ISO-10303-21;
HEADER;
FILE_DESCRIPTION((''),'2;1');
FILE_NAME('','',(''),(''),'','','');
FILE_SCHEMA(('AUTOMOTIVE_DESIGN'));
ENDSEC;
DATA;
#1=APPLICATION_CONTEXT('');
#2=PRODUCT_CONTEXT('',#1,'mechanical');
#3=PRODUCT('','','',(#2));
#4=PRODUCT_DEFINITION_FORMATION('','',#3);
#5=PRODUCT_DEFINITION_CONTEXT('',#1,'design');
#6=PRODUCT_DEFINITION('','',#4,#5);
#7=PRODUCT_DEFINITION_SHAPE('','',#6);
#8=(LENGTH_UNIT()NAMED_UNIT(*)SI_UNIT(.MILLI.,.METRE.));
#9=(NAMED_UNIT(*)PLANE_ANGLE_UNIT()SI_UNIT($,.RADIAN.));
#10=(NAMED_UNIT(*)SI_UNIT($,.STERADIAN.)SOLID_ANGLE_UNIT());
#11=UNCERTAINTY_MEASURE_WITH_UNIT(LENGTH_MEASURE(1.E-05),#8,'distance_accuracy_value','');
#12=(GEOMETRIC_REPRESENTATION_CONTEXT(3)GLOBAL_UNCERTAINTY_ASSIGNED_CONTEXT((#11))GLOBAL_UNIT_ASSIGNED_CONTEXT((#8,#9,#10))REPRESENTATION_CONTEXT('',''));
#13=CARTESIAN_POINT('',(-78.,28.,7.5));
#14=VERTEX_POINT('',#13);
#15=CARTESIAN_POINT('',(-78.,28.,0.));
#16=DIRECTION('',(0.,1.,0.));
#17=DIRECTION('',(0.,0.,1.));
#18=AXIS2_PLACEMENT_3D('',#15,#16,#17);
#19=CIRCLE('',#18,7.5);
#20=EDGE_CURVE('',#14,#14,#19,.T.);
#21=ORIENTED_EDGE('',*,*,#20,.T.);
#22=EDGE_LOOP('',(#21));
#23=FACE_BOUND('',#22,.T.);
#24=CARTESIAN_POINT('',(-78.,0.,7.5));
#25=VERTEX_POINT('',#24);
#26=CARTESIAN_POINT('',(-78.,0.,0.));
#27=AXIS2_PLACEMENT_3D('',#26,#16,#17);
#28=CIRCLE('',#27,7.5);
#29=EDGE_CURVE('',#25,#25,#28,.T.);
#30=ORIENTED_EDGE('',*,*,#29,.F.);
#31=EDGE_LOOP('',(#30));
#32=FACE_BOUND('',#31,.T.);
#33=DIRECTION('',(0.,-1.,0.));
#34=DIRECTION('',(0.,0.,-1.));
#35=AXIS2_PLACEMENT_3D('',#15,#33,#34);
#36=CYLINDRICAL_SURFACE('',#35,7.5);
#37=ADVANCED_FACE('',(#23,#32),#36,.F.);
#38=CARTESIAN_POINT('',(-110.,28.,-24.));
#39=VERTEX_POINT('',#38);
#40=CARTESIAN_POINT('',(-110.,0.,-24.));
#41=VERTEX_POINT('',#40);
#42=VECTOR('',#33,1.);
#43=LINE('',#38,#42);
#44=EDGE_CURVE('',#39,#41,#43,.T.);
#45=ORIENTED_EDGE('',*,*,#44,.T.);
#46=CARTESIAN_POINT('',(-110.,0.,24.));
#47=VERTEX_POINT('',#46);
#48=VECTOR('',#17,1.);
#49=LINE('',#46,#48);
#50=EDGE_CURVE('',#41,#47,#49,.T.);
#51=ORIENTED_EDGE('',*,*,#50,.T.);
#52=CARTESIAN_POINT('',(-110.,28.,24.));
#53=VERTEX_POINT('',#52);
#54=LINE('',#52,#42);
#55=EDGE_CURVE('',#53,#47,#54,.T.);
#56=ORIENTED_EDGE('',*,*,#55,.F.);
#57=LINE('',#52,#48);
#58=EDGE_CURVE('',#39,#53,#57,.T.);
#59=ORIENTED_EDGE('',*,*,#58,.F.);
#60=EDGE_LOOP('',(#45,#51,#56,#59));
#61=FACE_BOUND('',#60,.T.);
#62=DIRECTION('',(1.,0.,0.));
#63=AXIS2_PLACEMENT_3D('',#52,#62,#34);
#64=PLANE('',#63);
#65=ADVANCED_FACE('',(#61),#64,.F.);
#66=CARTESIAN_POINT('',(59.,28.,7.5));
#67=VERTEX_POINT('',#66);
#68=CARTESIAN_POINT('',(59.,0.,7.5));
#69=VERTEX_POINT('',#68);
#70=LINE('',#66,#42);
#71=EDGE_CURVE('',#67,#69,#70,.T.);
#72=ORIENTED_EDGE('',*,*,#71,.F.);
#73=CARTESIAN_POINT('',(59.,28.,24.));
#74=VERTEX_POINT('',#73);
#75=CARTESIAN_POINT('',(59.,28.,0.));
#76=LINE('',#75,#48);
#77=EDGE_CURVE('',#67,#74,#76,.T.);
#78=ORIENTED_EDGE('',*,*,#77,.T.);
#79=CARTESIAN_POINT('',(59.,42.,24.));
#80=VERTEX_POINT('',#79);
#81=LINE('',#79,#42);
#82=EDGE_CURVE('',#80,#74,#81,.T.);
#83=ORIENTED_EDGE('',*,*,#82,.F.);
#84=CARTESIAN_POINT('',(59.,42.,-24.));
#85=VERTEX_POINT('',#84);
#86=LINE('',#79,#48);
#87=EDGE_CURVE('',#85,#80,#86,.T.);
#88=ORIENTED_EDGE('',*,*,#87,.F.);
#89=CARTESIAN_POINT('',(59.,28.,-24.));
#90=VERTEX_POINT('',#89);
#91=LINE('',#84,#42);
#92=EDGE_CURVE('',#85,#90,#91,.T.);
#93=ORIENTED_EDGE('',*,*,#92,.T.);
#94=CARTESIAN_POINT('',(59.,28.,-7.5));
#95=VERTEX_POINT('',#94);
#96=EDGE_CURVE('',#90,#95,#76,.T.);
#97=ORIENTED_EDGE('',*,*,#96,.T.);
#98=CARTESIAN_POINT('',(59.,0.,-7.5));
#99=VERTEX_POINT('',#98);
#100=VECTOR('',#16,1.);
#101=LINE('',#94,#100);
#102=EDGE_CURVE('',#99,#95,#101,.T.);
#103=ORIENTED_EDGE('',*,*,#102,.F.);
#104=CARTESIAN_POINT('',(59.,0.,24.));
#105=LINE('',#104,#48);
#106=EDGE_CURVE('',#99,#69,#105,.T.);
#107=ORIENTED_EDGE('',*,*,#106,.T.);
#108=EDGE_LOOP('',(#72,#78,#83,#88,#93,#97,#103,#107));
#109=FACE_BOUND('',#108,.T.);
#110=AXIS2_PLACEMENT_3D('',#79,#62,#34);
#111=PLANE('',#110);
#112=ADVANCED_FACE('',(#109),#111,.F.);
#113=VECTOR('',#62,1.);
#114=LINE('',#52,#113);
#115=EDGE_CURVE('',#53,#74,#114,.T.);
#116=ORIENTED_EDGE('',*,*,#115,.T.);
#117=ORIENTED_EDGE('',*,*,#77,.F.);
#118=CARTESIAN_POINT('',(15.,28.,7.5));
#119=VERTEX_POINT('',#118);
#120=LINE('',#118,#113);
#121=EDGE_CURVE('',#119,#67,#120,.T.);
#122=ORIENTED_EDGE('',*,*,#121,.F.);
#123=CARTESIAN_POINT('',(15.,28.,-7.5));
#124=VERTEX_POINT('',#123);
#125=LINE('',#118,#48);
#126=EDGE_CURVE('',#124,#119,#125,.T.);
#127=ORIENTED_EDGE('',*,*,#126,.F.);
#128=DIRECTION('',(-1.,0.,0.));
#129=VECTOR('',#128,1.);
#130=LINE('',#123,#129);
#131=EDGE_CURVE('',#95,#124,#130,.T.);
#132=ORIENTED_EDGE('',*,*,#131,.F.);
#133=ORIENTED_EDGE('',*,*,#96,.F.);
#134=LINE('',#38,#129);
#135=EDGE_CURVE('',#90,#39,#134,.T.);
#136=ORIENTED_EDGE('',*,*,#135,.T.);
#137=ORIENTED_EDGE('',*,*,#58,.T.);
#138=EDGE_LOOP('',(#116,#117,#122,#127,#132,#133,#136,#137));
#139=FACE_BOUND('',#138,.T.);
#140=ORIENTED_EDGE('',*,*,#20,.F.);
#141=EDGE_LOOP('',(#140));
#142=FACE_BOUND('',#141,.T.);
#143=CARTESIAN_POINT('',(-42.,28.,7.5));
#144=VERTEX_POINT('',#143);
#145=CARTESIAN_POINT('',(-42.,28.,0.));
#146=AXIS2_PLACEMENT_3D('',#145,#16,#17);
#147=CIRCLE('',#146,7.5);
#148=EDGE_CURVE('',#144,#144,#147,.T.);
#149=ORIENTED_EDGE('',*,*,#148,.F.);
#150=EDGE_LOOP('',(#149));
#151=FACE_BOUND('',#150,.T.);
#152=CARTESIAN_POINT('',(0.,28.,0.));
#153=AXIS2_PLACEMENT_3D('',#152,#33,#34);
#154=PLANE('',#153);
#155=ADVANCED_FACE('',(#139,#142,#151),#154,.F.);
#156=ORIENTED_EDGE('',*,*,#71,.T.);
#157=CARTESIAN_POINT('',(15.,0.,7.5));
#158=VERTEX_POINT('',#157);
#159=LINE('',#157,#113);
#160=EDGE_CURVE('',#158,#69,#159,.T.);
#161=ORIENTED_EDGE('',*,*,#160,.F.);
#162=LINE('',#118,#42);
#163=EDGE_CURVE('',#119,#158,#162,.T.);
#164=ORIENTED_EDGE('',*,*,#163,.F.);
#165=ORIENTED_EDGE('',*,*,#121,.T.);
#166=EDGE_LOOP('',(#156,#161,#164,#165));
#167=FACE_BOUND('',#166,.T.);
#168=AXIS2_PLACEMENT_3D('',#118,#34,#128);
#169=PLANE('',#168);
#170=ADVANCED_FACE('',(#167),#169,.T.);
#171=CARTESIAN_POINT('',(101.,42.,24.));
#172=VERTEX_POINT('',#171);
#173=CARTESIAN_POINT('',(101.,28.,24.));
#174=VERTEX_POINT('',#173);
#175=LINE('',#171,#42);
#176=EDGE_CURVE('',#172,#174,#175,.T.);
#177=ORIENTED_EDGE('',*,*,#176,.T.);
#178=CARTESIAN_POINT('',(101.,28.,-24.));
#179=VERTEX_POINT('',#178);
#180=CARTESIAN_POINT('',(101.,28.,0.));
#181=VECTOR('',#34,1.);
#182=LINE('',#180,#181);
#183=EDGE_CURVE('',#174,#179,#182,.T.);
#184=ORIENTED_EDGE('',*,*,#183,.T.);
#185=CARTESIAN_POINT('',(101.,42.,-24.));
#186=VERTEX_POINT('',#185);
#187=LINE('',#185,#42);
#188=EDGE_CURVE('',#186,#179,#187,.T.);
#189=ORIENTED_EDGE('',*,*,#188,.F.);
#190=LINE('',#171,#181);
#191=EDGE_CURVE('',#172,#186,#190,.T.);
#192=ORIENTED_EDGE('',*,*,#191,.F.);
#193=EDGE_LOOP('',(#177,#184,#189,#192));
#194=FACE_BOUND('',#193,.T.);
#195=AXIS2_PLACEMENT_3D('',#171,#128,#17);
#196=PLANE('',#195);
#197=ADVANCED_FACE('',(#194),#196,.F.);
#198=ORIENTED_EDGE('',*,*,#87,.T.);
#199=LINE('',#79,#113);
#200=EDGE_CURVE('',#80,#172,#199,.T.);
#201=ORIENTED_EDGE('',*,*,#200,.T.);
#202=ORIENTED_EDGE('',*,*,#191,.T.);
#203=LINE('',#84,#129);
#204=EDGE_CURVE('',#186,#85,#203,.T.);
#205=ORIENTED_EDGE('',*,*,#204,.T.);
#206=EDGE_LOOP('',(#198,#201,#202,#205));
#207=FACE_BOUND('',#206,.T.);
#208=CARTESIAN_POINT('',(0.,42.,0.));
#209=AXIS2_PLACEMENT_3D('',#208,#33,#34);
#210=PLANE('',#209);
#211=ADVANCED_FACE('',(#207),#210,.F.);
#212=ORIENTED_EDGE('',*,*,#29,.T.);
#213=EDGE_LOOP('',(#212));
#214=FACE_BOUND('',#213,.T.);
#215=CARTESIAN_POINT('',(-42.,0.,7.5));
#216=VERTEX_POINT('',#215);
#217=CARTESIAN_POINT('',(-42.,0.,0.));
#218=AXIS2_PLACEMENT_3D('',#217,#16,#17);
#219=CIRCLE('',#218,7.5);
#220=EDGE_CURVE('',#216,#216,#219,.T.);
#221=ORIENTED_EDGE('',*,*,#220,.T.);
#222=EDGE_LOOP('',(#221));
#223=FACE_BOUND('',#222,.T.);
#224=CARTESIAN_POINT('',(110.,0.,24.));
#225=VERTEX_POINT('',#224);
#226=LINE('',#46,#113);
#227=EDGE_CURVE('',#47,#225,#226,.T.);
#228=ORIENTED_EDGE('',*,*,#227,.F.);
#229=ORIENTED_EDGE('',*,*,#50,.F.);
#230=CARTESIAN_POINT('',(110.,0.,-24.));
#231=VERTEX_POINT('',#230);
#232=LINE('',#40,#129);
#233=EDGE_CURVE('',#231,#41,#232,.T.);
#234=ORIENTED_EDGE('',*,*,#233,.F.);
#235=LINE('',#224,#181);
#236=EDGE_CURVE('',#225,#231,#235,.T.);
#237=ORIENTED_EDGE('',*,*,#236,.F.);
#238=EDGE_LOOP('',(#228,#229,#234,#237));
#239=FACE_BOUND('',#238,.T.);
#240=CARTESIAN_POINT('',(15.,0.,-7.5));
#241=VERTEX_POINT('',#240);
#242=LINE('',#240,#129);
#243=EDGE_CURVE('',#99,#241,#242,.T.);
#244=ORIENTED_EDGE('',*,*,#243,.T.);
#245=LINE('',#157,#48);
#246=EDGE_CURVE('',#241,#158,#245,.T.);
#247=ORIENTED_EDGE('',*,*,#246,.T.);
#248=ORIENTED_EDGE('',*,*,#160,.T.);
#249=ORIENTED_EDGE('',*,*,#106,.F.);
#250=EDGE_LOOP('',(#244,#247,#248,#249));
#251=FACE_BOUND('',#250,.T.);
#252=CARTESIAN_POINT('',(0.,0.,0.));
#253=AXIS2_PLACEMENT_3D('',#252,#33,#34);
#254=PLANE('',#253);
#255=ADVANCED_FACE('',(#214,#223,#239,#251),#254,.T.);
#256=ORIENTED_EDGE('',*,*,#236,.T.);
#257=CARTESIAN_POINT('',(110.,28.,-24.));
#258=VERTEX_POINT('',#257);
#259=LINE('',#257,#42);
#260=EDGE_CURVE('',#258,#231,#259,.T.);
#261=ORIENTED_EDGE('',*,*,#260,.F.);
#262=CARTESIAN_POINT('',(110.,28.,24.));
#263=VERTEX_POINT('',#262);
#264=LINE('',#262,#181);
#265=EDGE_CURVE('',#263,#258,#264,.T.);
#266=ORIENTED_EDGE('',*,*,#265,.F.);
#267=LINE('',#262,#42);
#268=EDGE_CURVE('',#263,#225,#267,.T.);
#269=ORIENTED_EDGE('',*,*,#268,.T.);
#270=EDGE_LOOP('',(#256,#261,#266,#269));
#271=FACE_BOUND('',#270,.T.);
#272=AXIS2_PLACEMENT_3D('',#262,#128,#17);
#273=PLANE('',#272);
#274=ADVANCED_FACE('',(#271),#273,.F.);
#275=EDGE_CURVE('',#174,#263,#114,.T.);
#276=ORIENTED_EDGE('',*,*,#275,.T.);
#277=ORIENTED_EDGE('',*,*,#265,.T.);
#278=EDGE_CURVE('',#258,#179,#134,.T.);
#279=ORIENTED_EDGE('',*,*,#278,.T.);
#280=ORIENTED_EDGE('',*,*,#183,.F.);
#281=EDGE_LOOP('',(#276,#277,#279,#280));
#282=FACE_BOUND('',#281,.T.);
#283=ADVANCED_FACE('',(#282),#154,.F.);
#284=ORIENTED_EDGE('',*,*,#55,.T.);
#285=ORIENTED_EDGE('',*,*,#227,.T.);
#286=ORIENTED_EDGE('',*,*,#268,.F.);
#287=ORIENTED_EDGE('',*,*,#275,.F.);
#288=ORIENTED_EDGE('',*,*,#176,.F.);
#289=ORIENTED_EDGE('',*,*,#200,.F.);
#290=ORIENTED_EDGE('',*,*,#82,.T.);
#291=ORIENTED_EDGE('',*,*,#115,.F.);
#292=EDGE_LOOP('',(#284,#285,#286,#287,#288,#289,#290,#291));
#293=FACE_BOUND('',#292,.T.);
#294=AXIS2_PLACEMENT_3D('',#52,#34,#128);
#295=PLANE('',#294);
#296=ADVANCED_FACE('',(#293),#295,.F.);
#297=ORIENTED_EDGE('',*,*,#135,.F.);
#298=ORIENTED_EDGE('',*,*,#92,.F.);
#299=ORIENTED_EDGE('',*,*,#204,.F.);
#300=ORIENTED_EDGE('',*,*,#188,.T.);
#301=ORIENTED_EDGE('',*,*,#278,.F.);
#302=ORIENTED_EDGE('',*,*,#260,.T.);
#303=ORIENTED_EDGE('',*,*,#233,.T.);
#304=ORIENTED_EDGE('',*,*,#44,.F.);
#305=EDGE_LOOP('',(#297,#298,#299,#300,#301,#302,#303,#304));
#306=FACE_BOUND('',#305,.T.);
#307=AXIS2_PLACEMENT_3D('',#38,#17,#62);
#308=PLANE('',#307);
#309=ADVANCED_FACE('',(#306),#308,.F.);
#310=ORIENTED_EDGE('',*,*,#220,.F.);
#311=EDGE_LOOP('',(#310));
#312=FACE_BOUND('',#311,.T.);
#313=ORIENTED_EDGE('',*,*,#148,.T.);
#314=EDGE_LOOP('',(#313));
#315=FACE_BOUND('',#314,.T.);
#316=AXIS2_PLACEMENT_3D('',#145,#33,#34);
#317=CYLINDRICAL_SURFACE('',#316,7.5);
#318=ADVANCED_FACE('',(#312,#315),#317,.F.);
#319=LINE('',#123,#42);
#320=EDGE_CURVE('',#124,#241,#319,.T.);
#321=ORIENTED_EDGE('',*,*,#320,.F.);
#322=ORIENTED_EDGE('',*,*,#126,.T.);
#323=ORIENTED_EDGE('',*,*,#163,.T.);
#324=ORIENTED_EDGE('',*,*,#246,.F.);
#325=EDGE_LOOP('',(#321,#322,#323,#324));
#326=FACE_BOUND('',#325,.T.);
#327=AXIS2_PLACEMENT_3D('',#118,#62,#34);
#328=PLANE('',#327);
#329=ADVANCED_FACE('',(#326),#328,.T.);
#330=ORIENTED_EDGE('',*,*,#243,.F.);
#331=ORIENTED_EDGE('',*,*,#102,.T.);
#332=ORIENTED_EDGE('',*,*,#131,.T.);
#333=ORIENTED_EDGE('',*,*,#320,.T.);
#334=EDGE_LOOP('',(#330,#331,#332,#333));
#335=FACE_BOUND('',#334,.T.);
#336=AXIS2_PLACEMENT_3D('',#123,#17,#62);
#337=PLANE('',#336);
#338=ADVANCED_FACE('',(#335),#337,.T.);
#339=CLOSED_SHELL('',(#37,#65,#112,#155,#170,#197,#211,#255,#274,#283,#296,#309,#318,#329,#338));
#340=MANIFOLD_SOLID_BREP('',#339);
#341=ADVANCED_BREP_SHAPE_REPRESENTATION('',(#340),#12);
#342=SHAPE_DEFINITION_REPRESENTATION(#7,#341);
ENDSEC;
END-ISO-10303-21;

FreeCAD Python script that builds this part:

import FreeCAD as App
import Part
import Sketcher
Q = App.Units.Quantity

doc = App.newDocument("Part")
params = doc.addObject("Spreadsheet::Sheet", "Params")
for row, (alias, value) in enumerate([
    ("sketch1_diameter", "15 mm"),
    ("sketch1_width", "220 mm"),
    ("sketch1_width2", "60 mm"),
    ("sketch1_height", "48 mm"),
    ("sketch1_height2", "15 mm"),
    ("pad1_length", "28 mm"),
    ("sketch2_width", "42 mm"),
    ("sketch2_height", "48 mm"),
    ("pad2_length", "42 mm"),
], start=1):
    params.set(f"A{row}", alias)
    params.set(f"B{row}", "=" + value)
    params.setAlias(f"B{row}", alias)

body = doc.addObject("PartDesign::Body", "Body")

# Sketch on XZ plane
sketch1 = doc.addObject("Sketcher::SketchObject", "Sketch")
body.addObject(sketch1)
sketch1.AttachmentSupport = (doc.XZ_Plane, [""])
sketch1.MapMode = "FlatFace"
sketch1.addGeometry(Part.LineSegment(App.Vector(-110, -24, 0), App.Vector(-110, 24, 0)), False)
sketch1.addGeometry(Part.LineSegment(App.Vector(-110, 24, 0), App.Vector(110, 24, 0)), False)
sketch1.addGeometry(Part.LineSegment(App.Vector(110, 24, 0), App.Vector(110, -24, 0)), False)
sketch1.addGeometry(Part.LineSegment(App.Vector(110, -24, 0), App.Vector(-110, -24, 0)), False)
sketch1.addGeometry(Part.Circle(App.Vector(-78, 0, 0), App.Vector(0, 0, 1), 8), False)
sketch1.addGeometry(Part.Circle(App.Vector(-42, 0, 0), App.Vector(0, 0, 1), 8), False)
sketch1.addGeometry(Part.LineSegment(App.Vector(75, 8, 0), App.Vector(15, 8, 0)), False)
sketch1.addGeometry(Part.LineSegment(App.Vector(15, 8, 0), App.Vector(15, -8, 0)), False)
sketch1.addGeometry(Part.LineSegment(App.Vector(15, -8, 0), App.Vector(75, -8, 0)), False)
sketch1.addGeometry(Part.LineSegment(App.Vector(75, -8, 0), App.Vector(75, 8, 0)), False)
sketch1.addConstraint(Sketcher.Constraint("Coincident", 0, 2, 1, 1))
sketch1.addConstraint(Sketcher.Constraint("Coincident", 1, 2, 2, 1))
sketch1.addConstraint(Sketcher.Constraint("Coincident", 2, 2, 3, 1))
sketch1.addConstraint(Sketcher.Constraint("Coincident", 3, 2, 0, 1))
sketch1.addConstraint(Sketcher.Constraint("Coincident", 6, 2, 7, 1))
sketch1.addConstraint(Sketcher.Constraint("Coincident", 7, 2, 8, 1))
sketch1.addConstraint(Sketcher.Constraint("Coincident", 8, 2, 9, 1))
sketch1.addConstraint(Sketcher.Constraint("Coincident", 9, 2, 6, 1))
sketch1.addConstraint(Sketcher.Constraint("Vertical", 0))
sketch1.addConstraint(Sketcher.Constraint("Horizontal", 1))
sketch1.addConstraint(Sketcher.Constraint("Vertical", 2))
sketch1.addConstraint(Sketcher.Constraint("Horizontal", 3))
sketch1.addConstraint(Sketcher.Constraint("Horizontal", 6))
sketch1.addConstraint(Sketcher.Constraint("Vertical", 7))
sketch1.addConstraint(Sketcher.Constraint("Horizontal", 8))
sketch1.addConstraint(Sketcher.Constraint("Vertical", 9))
sketch1.addConstraint(Sketcher.Constraint("Equal", 4, 5))
sketch1.addConstraint(Sketcher.Constraint("Symmetric", 0, 2, 2, 2, -1, 1))
sketch1.addConstraint(Sketcher.Constraint("PointOnObject", 4, 3, -1))
sketch1.addConstraint(Sketcher.Constraint("PointOnObject", 5, 3, -1))
sketch1.addConstraint(Sketcher.Constraint("Diameter", 4, Q("15 mm")))
sketch1.addConstraint(Sketcher.Constraint("DistanceX", 1, 1, 1, 2, Q("220 mm")))
sketch1.addConstraint(Sketcher.Constraint("DistanceX", 6, 2, 6, 1, Q("60 mm")))
sketch1.addConstraint(Sketcher.Constraint("DistanceY", 0, 1, 0, 2, Q("48 mm")))
sketch1.addConstraint(Sketcher.Constraint("DistanceY", 7, 2, 7, 1, Q("15 mm")))
sketch1.addConstraint(Sketcher.Constraint("DistanceX", 4, 3, -1, 1, Q("78 mm")))
sketch1.addConstraint(Sketcher.Constraint("DistanceX", 5, 3, -1, 1, Q("42 mm")))
sketch1.addConstraint(Sketcher.Constraint("DistanceX", -1, 1, 6, 2, Q("15 mm")))
sketch1.addConstraint(Sketcher.Constraint("DistanceY", -1, 1, 6, 2, Q("7.5 mm")))
sketch1.setExpression("Constraints[20]", "Params.sketch1_diameter")
sketch1.setExpression("Constraints[21]", "Params.sketch1_width")
sketch1.setExpression("Constraints[22]", "Params.sketch1_width2")
sketch1.setExpression("Constraints[23]", "Params.sketch1_height")
sketch1.setExpression("Constraints[24]", "Params.sketch1_height2")
pad1 = doc.addObject("PartDesign::Pad", "Pad")
body.addObject(pad1)
pad1.Profile = sketch1
pad1.setExpression("Length", "Params.pad1_length")
pad1.Reversed = True

# Sketch on XZ plane
sketch2 = doc.addObject("Sketcher::SketchObject", "Sketch001")
body.addObject(sketch2)
sketch2.AttachmentSupport = (doc.XZ_Plane, [""])
sketch2.MapMode = "FlatFace"
sketch2.addGeometry(Part.LineSegment(App.Vector(59, -24, 0), App.Vector(59, 24, 0)), False)
sketch2.addGeometry(Part.LineSegment(App.Vector(59, 24, 0), App.Vector(101, 24, 0)), False)
sketch2.addGeometry(Part.LineSegment(App.Vector(101, 24, 0), App.Vector(101, -24, 0)), False)
sketch2.addGeometry(Part.LineSegment(App.Vector(101, -24, 0), App.Vector(59, -24, 0)), False)
sketch2.addConstraint(Sketcher.Constraint("Coincident", 0, 2, 1, 1))
sketch2.addConstraint(Sketcher.Constraint("Coincident", 1, 2, 2, 1))
sketch2.addConstraint(Sketcher.Constraint("Coincident", 2, 2, 3, 1))
sketch2.addConstraint(Sketcher.Constraint("Coincident", 3, 2, 0, 1))
sketch2.addConstraint(Sketcher.Constraint("Vertical", 0))
sketch2.addConstraint(Sketcher.Constraint("Horizontal", 1))
sketch2.addConstraint(Sketcher.Constraint("Vertical", 2))
sketch2.addConstraint(Sketcher.Constraint("Horizontal", 3))
sketch2.addConstraint(Sketcher.Constraint("DistanceX", 1, 1, 1, 2, Q("42 mm")))
sketch2.addConstraint(Sketcher.Constraint("DistanceY", 0, 1, 0, 2, Q("48 mm")))
sketch2.addConstraint(Sketcher.Constraint("DistanceX", -1, 1, 0, 2, Q("59 mm")))
sketch2.addConstraint(Sketcher.Constraint("DistanceY", -1, 1, 0, 2, Q("24 mm")))
sketch2.setExpression("Constraints[8]", "Params.sketch2_width")
sketch2.setExpression("Constraints[9]", "Params.sketch2_height")
pad2 = doc.addObject("PartDesign::Pad", "Pad001")
body.addObject(pad2)
pad2.Profile = sketch2
pad2.setExpression("Length", "Params.pad2_length")
pad2.Reversed = True

doc.recompute()
